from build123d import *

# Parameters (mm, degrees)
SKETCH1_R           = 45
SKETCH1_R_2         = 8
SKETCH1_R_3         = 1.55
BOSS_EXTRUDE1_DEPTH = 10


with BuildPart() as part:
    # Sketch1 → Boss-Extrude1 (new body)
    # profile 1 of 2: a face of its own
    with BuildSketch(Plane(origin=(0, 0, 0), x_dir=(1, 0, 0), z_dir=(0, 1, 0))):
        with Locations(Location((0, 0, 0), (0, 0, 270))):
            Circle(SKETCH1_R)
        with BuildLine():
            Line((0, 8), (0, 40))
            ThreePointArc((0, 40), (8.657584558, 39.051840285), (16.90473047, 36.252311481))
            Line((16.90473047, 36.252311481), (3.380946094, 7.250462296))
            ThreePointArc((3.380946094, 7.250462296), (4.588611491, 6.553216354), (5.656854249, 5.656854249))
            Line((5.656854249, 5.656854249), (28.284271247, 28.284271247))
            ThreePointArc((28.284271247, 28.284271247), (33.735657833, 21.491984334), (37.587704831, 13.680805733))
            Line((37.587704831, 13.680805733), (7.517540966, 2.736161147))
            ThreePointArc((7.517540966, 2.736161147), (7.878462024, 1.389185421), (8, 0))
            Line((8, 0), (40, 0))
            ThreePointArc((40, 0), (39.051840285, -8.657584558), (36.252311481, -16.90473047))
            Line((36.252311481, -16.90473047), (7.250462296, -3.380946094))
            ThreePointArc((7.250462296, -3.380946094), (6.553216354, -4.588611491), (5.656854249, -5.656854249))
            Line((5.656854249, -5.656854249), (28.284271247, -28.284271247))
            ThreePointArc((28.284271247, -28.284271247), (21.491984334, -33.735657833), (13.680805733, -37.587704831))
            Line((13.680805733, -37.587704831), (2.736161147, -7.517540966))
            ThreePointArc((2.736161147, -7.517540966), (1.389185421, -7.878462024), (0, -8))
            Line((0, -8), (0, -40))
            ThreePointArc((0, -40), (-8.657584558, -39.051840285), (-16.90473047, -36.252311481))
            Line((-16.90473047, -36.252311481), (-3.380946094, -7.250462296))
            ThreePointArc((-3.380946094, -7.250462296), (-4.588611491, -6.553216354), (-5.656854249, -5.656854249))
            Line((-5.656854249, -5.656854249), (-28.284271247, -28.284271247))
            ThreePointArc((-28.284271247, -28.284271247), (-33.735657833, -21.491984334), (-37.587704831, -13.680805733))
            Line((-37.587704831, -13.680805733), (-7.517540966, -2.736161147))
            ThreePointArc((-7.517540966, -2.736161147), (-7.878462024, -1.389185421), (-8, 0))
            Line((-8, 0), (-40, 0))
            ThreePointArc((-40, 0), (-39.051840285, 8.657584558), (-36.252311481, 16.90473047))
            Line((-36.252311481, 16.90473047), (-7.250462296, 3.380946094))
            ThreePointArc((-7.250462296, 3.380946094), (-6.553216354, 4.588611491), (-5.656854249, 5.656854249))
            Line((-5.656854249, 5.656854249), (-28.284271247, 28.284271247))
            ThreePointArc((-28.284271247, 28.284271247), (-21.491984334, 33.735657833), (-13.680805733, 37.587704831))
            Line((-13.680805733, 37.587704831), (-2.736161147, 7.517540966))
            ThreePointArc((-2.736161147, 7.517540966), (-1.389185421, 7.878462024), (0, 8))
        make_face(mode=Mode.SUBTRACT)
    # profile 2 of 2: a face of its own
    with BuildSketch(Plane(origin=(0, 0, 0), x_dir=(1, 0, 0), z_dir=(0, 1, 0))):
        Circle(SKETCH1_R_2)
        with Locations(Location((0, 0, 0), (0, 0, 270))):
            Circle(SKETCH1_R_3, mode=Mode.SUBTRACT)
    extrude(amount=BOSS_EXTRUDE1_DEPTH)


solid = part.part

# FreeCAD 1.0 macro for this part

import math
import FreeCAD as App
import Part
import Sketcher
Q = App.Units.Quantity

doc = App.newDocument("Part")
params = doc.addObject("Spreadsheet::Sheet", "Params")
for row, (alias, value) in enumerate([
    ("sketch1_diameter", "90 mm"),
    ("sketch1_radius", "8 mm"),
    ("sketch1_radius2", "40 mm"),
    ("sketch1_diameter2", "3.1 mm"),
    ("pad1_length", "10 mm"),
], start=1):
    params.set(f"A{row}", alias)
    params.set(f"B{row}", "=" + value)
    params.setAlias(f"B{row}", alias)

body = doc.addObject("PartDesign::Body", "Body")

sketch1 = doc.addObject("Sketcher::SketchObject", "Sketch")
body.addObject(sketch1)
sketch1.AttachmentSupport = (doc.XZ_Plane, [""])
sketch1.MapMode = "FlatFace"
sketch1.addGeometry([
    Part.Circle(App.Vector(0, 0, 0), App.Vector(0, 0, 1), 45),
    Part.LineSegment(App.Vector(-13.680806, -37.587705, 0), App.Vector(-2.736161, -7.517541, 0)),
    Part.ArcOfCircle(Part.Circle(App.Vector(0, 0, 0), App.Vector(0, 0, 1), 8), math.radians(-135), math.radians(-110)),
    Part.LineSegment(App.Vector(-5.656854, -5.656854, 0), App.Vector(-28.284271, -28.284271, 0)),
    Part.ArcOfCircle(Part.Circle(App.Vector(0, 0, 0), App.Vector(0, 0, 1), 40), math.radians(-135), math.radians(-110)),
    Part.LineSegment(App.Vector(-36.252311, -16.90473, 0), App.Vector(-7.250462, -3.380946, 0)),
    Part.ArcOfCircle(Part.Circle(App.Vector(0, 0, 0), App.Vector(0, 0, 1), 8), math.radians(180), math.radians(205)),
    Part.LineSegment(App.Vector(-8, 0, 0), App.Vector(-40, 0, 0)),
    Part.ArcOfCircle(Part.Circle(App.Vector(0, 0, 0), App.Vector(0, 0, 1), 40), math.radians(180), math.radians(205)),
    Part.LineSegment(App.Vector(-37.587705, 13.680806, 0), App.Vector(-7.517541, 2.736161, 0)),
    Part.ArcOfCircle(Part.Circle(App.Vector(0, 0, 0), App.Vector(0, 0, 1), 8), math.radians(135), math.radians(160)),
    Part.LineSegment(App.Vector(-5.656854, 5.656854, 0), App.Vector(-28.284271, 28.284271, 0)),
    Part.ArcOfCircle(Part.Circle(App.Vector(0, 0, 0), App.Vector(0, 0, 1), 40), math.radians(135), math.radians(160)),
    Part.LineSegment(App.Vector(-16.90473, 36.252311, 0), App.Vector(-3.380946, 7.250462, 0)),
    Part.ArcOfCircle(Part.Circle(App.Vector(0, 0, 0), App.Vector(0, 0, 1), 8), math.radians(90), math.radians(115)),
    Part.LineSegment(App.Vector(0, 8, 0), App.Vector(0, 40, 0)),
    Part.ArcOfCircle(Part.Circle(App.Vector(0, 0, 0), App.Vector(0, 0, 1), 40), math.radians(90), math.radians(115)),
    Part.LineSegment(App.Vector(13.680806, 37.587705, 0), App.Vector(2.736161, 7.517541, 0)),
    Part.ArcOfCircle(Part.Circle(App.Vector(0, 0, 0), App.Vector(0, 0, 1), 8), math.radians(45), math.radians(70)),
    Part.LineSegment(App.Vector(5.656854, 5.656854, 0), App.Vector(28.284271, 28.284271, 0)),
    Part.ArcOfCircle(Part.Circle(App.Vector(0, 0, 0), App.Vector(0, 0, 1), 40), math.radians(45), math.radians(70)),
    Part.LineSegment(App.Vector(36.252311, 16.90473, 0), App.Vector(7.250462, 3.380946, 0)),
    Part.ArcOfCircle(Part.Circle(App.Vector(0, 0, 0), App.Vector(0, 0, 1), 8), math.radians(0), math.radians(25)),
    Part.LineSegment(App.Vector(8, 0, 0), App.Vector(40, 0, 0)),
    Part.ArcOfCircle(Part.Circle(App.Vector(0, 0, 0), App.Vector(0, 0, 1), 40), math.radians(0), math.radians(25)),
    Part.LineSegment(App.Vector(37.587705, -13.680806, 0), App.Vector(7.517541, -2.736161, 0)),
    Part.ArcOfCircle(Part.Circle(App.Vector(0, 0, 0), App.Vector(0, 0, 1), 8), math.radians(-45), math.radians(-20)),
    Part.LineSegment(App.Vector(5.656854, -5.656854, 0), App.Vector(28.284271, -28.284271, 0)),
    Part.ArcOfCircle(Part.Circle(App.Vector(0, 0, 0), App.Vector(0, 0, 1), 40), math.radians(-45), math.radians(-20)),
    Part.LineSegment(App.Vector(16.90473, -36.252311, 0), App.Vector(3.380946, -7.250462, 0)),
    Part.ArcOfCircle(Part.Circle(App.Vector(0, 0, 0), App.Vector(0, 0, 1), 8), math.radians(-90), math.radians(-65)),
    Part.LineSegment(App.Vector(0, -8, 0), App.Vector(0, -40, 0)),
    Part.ArcOfCircle(Part.Circle(App.Vector(0, 0, 0), App.Vector(0, 0, 1), 40), math.radians(-90), math.radians(-65)),
    Part.Circle(App.Vector(0, 0, 0), App.Vector(0, 0, 1), 1.55),
], False)
sketch1.addConstraint([
    Sketcher.Constraint("Coincident", 1, 2, 2, 2),
    Sketcher.Constraint("Coincident", 2, 1, 3, 1),
    Sketcher.Constraint("Coincident", 3, 2, 4, 1),
    Sketcher.Constraint("Coincident", 4, 2, 1, 1),
    Sketcher.Constraint("Coincident", 5, 2, 6, 2),
    Sketcher.Constraint("Coincident", 6, 1, 7, 1),
    Sketcher.Constraint("Coincident", 7, 2, 8, 1),
    Sketcher.Constraint("Coincident", 8, 2, 5, 1),
    Sketcher.Constraint("Coincident", 9, 2, 10, 2),
    Sketcher.Constraint("Coincident", 10, 1, 11, 1),
    Sketcher.Constraint("Coincident", 11, 2, 12, 1),
    Sketcher.Constraint("Coincident", 12, 2, 9, 1),
    Sketcher.Constraint("Coincident", 13, 2, 14, 2),
    Sketcher.Constraint("Coincident", 14, 1, 15, 1),
    Sketcher.Constraint("Coincident", 15, 2, 16, 1),
    Sketcher.Constraint("Coincident", 16, 2, 13, 1),
    Sketcher.Constraint("Coincident", 17, 2, 18, 2),
    Sketcher.Constraint("Coincident", 18, 1, 19, 1),
    Sketcher.Constraint("Coincident", 19, 2, 20, 1),
    Sketcher.Constraint("Coincident", 20, 2, 17, 1),
    Sketcher.Constraint("Coincident", 21, 2, 22, 2),
    Sketcher.Constraint("Coincident", 22, 1, 23, 1),
    Sketcher.Constraint("Coincident", 23, 2, 24, 1),
    Sketcher.Constraint("Coincident", 24, 2, 21, 1),
    Sketcher.Constraint("Coincident", 25, 2, 26, 2),
    Sketcher.Constraint("Coincident", 26, 1, 27, 1),
    Sketcher.Constraint("Coincident", 27, 2, 28, 1),
    Sketcher.Constraint("Coincident", 28, 2, 25, 1),
    Sketcher.Constraint("Coincident", 29, 2, 30, 2),
    Sketcher.Constraint("Coincident", 30, 1, 31, 1),
    Sketcher.Constraint("Coincident", 31, 2, 32, 1),
    Sketcher.Constraint("Coincident", 32, 2, 29, 1),
    Sketcher.Constraint("Horizontal", 7),
    Sketcher.Constraint("Vertical", 15),
    Sketcher.Constraint("Horizontal", 23),
    Sketcher.Constraint("Vertical", 31),
    Sketcher.Constraint("Coincident", 0, 3, -1, 1),
    Sketcher.Constraint("Coincident", 2, 3, -1, 1),
    Sketcher.Constraint("Coincident", 4, 3, -1, 1),
    Sketcher.Constraint("Coincident", 6, 3, -1, 1),
    Sketcher.Constraint("Coincident", 8, 3, -1, 1),
    Sketcher.Constraint("Coincident", 10, 3, -1, 1),
    Sketcher.Constraint("Coincident", 12, 3, -1, 1),
    Sketcher.Constraint("Coincident", 14, 3, -1, 1),
    Sketcher.Constraint("Coincident", 16, 3, -1, 1),
    Sketcher.Constraint("Coincident", 18, 3, -1, 1),
    Sketcher.Constraint("Coincident", 20, 3, -1, 1),
    Sketcher.Constraint("Coincident", 22, 3, -1, 1),
    Sketcher.Constraint("Coincident", 24, 3, -1, 1),
    Sketcher.Constraint("Coincident", 26, 3, -1, 1),
    Sketcher.Constraint("Coincident", 28, 3, -1, 1),
    Sketcher.Constraint("Coincident", 30, 3, -1, 1),
    Sketcher.Constraint("Coincident", 32, 3, -1, 1),
    Sketcher.Constraint("Coincident", 33, 3, -1, 1),
    Sketcher.Constraint("Equal", 2, 6),
    Sketcher.Constraint("Equal", 4, 8),
    Sketcher.Constraint("Equal", 6, 10),
    Sketcher.Constraint("Equal", 8, 12),
    Sketcher.Constraint("Equal", 10, 14),
    Sketcher.Constraint("Equal", 12, 16),
    Sketcher.Constraint("Equal", 14, 18),
    Sketcher.Constraint("Equal", 16, 20),
    Sketcher.Constraint("Equal", 18, 22),
    Sketcher.Constraint("Equal", 20, 24),
    Sketcher.Constraint("Equal", 22, 26),
    Sketcher.Constraint("Equal", 24, 28),
    Sketcher.Constraint("Equal", 26, 30),
    Sketcher.Constraint("Equal", 28, 32),
    Sketcher.Constraint("PointOnObject", 6, 1, -1),
    Sketcher.Constraint("PointOnObject", 14, 1, -2),
    Sketcher.Constraint("PointOnObject", 22, 1, -1),
    Sketcher.Constraint("PointOnObject", 30, 1, -2),
    Sketcher.Constraint("Perpendicular", 1, 9),
    Sketcher.Constraint("Perpendicular", 3, 11),
    Sketcher.Constraint("Perpendicular", 5, 13),
    Sketcher.Constraint("Perpendicular", 9, 17),
    Sketcher.Constraint("Perpendicular", 11, 19),
    Sketcher.Constraint("Perpendicular", 13, 21),
    Sketcher.Constraint("Perpendicular", 17, 25),
    Sketcher.Constraint("Perpendicular", 19, 27),
    Sketcher.Constraint("Perpendicular", 21, 29),
    Sketcher.Constraint("Horizontal", 10, 1, 18, 1),
    Sketcher.Constraint("Horizontal", 11, 2, 19, 2),
    Sketcher.Constraint("Horizontal", 2, 1, 26, 1),
    Sketcher.Constraint("Vertical", 2, 1, 10, 1),
    Sketcher.Constraint("Diameter", 0, Q("90 mm")),
    Sketcher.Constraint("Radius", 2, Q("8 mm")),
    Sketcher.Constraint("Radius", 4, Q("40 mm")),
    Sketcher.Constraint("Diameter", 33, Q("3.1 mm")),
    Sketcher.Constraint("Angle", 1, Q("70 deg")),
    Sketcher.Constraint("Angle", 5, Q("25 deg")),
    Sketcher.Constraint("DistanceX", 5, 2, 1, 2, Q("4.514301 mm")),
    Sketcher.Constraint("DistanceY", 9, 2, 13, 2, Q("4.514301 mm")),
    Sketcher.Constraint("DistanceX", 17, 2, 21, 2, Q("4.514301 mm")),
    Sketcher.Constraint("DistanceY", 29, 2, 25, 2, Q("4.514301 mm")),
    Sketcher.Constraint("DistanceX", 1, 2, -1, 1, Q("2.736161 mm")),
    Sketcher.Constraint("DistanceX", 3, 2, -1, 1, Q("28.284271 mm")),
    Sketcher.Constraint("DistanceX", 9, 2, -1, 1, Q("7.517541 mm")),
    Sketcher.Constraint("DistanceX", -1, 1, 17, 2, Q("2.736161 mm")),
    Sketcher.Constraint("DistanceX", -1, 1, 25, 2, Q("7.517541 mm")),
])
sketch1.setExpression("Constraints[85]", "Params.sketch1_diameter")
sketch1.setExpression("Constraints[86]", "Params.sketch1_radius")
sketch1.setExpression("Constraints[87]", "Params.sketch1_radius2")
sketch1.setExpression("Constraints[88]", "Params.sketch1_diameter2")
pad1 = doc.addObject("PartDesign::Pad", "Pad")
body.addObject(pad1)
pad1.Profile = sketch1
pad1.setExpression("Length", "Params.pad1_length")
pad1.Reversed = True

doc.recompute()
